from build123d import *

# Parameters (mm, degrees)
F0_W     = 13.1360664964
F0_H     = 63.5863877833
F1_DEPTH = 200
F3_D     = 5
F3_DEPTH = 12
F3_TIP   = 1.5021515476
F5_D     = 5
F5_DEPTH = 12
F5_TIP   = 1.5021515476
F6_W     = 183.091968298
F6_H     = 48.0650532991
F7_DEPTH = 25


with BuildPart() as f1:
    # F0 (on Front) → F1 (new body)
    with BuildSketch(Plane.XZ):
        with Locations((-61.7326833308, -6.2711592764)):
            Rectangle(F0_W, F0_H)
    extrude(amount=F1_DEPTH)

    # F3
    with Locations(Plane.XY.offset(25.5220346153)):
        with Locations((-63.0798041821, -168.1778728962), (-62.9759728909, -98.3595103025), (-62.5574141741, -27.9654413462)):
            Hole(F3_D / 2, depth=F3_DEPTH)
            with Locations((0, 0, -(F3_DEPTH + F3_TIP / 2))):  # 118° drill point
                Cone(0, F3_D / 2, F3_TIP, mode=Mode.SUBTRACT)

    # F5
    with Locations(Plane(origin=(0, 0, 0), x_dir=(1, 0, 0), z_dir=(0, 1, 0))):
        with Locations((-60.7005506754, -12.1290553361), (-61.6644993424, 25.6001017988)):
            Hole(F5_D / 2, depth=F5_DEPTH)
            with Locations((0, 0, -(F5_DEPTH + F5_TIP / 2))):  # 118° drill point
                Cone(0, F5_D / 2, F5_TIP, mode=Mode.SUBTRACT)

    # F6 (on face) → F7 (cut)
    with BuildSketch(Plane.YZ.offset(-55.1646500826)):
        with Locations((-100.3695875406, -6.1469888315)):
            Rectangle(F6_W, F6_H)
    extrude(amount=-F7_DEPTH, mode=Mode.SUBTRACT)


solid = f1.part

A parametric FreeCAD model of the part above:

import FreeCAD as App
import Part
import Sketcher
Q = App.Units.Quantity


def add_polygon(sketch, points):
    """Adds a closed chain of lines whose ends are joined by coincident constraints."""
    first, n = sketch.GeometryCount, len(points)
    for a, b in zip(points, points[1:] + points[:1]):
        sketch.addGeometry(Part.LineSegment(App.Vector(*a, 0), App.Vector(*b, 0)), False)
    for i in range(n):
        sketch.addConstraint(Sketcher.Constraint("Coincident", first + i, 2, first + (i + 1) % n, 1))

doc = App.newDocument("Part")
params = doc.addObject("Spreadsheet::Sheet", "Params")
for row, (alias, value) in enumerate([
    ("pad1_length", "200 mm"),
    ("sketch2_diameter", "5 mm"),
    ("hole_diameter", "5 mm"),
    ("hole_depth", "12 mm"),
    ("sketch3_diameter", "5 mm"),
    ("hole2_diameter", "5 mm"),
    ("hole2_depth", "12 mm"),
    ("pocket1_length", "25 mm"),
], start=1):
    params.set(f"A{row}", alias)
    params.set(f"B{row}", "=" + value)
    params.setAlias(f"B{row}", alias)

body = doc.addObject("PartDesign::Body", "Body")

# Sketch on XZ plane
sketch1 = doc.addObject("Sketcher::SketchObject", "Sketch")
body.addObject(sketch1)
sketch1.AttachmentSupport = (doc.XZ_Plane, [""])
sketch1.MapMode = "FlatFace"
add_polygon(sketch1, [(-68, 26), (-68, -38), (-55, -38), (-55, 26)])  # lines 0-3
sketch1.addConstraint(Sketcher.Constraint("Vertical", 0))
sketch1.addConstraint(Sketcher.Constraint("Horizontal", 1))
sketch1.addConstraint(Sketcher.Constraint("Vertical", 2))
sketch1.addConstraint(Sketcher.Constraint("Horizontal", 3))
sketch1.addConstraint(Sketcher.Constraint("DistanceX", 1, 1, 1, 2, Q("13.136066 mm")))
sketch1.addConstraint(Sketcher.Constraint("DistanceY", 0, 2, 0, 1, Q("63.586388 mm")))
sketch1.addConstraint(Sketcher.Constraint("DistanceX", 1, 2, -1, 1, Q("55.16465 mm")))
sketch1.addConstraint(Sketcher.Constraint("DistanceY", 0, 2, -1, 1, Q("38.064353 mm")))
pad1 = doc.addObject("PartDesign::Pad", "Pad")
body.addObject(pad1)
pad1.Profile = sketch1
pad1.setExpression("Length", "Params.pad1_length")

# Sketch on XY plane
sketch2 = doc.addObject("Sketcher::SketchObject", "Sketch001")
body.addObject(sketch2)
sketch2.AttachmentSupport = (doc.XY_Plane, [""])
sketch2.MapMode = "FlatFace"
sketch2.AttachmentOffset = App.Placement(App.Vector(0, 0, 25.522035), App.Rotation())
sketch2.addGeometry(Part.Circle(App.Vector(-63.1, -168.2, 0), App.Vector(0, 0, 1), 2.5), False)
sketch2.addGeometry(Part.Circle(App.Vector(-63, -98.4, 0), App.Vector(0, 0, 1), 2.5), False)
sketch2.addGeometry(Part.Circle(App.Vector(-62.6, -28, 0), App.Vector(0, 0, 1), 2.5), False)
sketch2.addConstraint(Sketcher.Constraint("Equal", 0, 1))
sketch2.addConstraint(Sketcher.Constraint("Equal", 1, 2))
sketch2.addConstraint(Sketcher.Constraint("Diameter", 0, Q("5 mm")))
sketch2.addConstraint(Sketcher.Constraint("DistanceY", 1, 3, -1, 1, Q("98.35951 mm")))
sketch2.addConstraint(Sketcher.Constraint("DistanceY", 2, 3, -1, 1, Q("27.965441 mm")))
sketch2.addConstraint(Sketcher.Constraint("DistanceX", 0, 3, 1, 3, Q("0.103831 mm")))
sketch2.addConstraint(Sketcher.Constraint("DistanceX", 1, 3, 2, 3, Q("0.418559 mm")))
sketch2.addConstraint(Sketcher.Constraint("DistanceY", 0, 3, 2, 3, Q("140.212432 mm")))
sketch2.addConstraint(Sketcher.Constraint("DistanceX", 0, 3, -1, 1, Q("63.079804 mm")))
sketch2.setExpression("Constraints[2]", "Params.sketch2_diameter")
doc.recompute()
hole = doc.addObject("PartDesign::Hole", "Hole")
body.addObject(hole)
hole.Profile = sketch2
hole.ThreadType = "None"
hole.setExpression("Diameter", "Params.hole_diameter")
hole.DepthType = "Dimension"
hole.setExpression("Depth", "Params.hole_depth")
hole.DrillPoint = "Angled"
hole.DrillPointAngle = 118

# Sketch on XZ plane
sketch3 = doc.addObject("Sketcher::SketchObject", "Sketch002")
body.addObject(sketch3)
sketch3.AttachmentSupport = (doc.XZ_Plane, [""])
sketch3.MapMode = "FlatFace"
sketch3.addGeometry(Part.Circle(App.Vector(-60.7, 12.1, 0), App.Vector(0, 0, 1), 2.5), False)
sketch3.addGeometry(Part.Circle(App.Vector(-61.7, -25.6, 0), App.Vector(0, 0, 1), 2.5), False)
sketch3.addConstraint(Sketcher.Constraint("Equal", 0, 1))
sketch3.addConstraint(Sketcher.Constraint("Diameter", 0, Q("5 mm")))
sketch3.addConstraint(Sketcher.Constraint("DistanceX", 1, 3, -1, 1, Q("61.664499 mm")))
sketch3.addConstraint(Sketcher.Constraint("DistanceY", 1, 3, -1, 1, Q("25.600102 mm")))
sketch3.addConstraint(Sketcher.Constraint("DistanceX", 0, 3, -1, 1, Q("60.700551 mm")))
sketch3.addConstraint(Sketcher.Constraint("DistanceY", -1, 1, 0, 3, Q("12.129055 mm")))
sketch3.setExpression("Constraints[1]", "Params.sketch3_diameter")
doc.recompute()
hole2 = doc.addObject("PartDesign::Hole", "Hole001")
body.addObject(hole2)
hole2.Profile = sketch3
hole2.ThreadType = "None"
hole2.setExpression("Diameter", "Params.hole2_diameter")
hole2.DepthType = "Dimension"
hole2.setExpression("Depth", "Params.hole2_depth")
hole2.DrillPoint = "Angled"
hole2.DrillPointAngle = 118
hole2.Reversed = True

# Sketch on YZ plane
sketch4 = doc.addObject("Sketcher::SketchObject", "Sketch003")
body.addObject(sketch4)
sketch4.AttachmentSupport = (doc.YZ_Plane, [""])
sketch4.MapMode = "FlatFace"
sketch4.AttachmentOffset = App.Placement(App.Vector(0, 0, -55.16465), App.Rotation())
add_polygon(sketch4, [(-192, 18), (-192, -30), (-9, -30), (-9, 18)])  # lines 0-3
sketch4.addConstraint(Sketcher.Constraint("Vertical", 0))
sketch4.addConstraint(Sketcher.Constraint("Horizontal", 1))
sketch4.addConstraint(Sketcher.Constraint("Vertical", 2))
sketch4.addConstraint(Sketcher.Constraint("Horizontal", 3))
sketch4.addConstraint(Sketcher.Constraint("DistanceX", 1, 1, 1, 2, Q("183.091968 mm")))
sketch4.addConstraint(Sketcher.Constraint("DistanceY", 0, 2, 0, 1, Q("48.065053 mm")))
sketch4.addConstraint(Sketcher.Constraint("DistanceX", 0, 2, -1, 1, Q("191.915572 mm")))
sketch4.addConstraint(Sketcher.Constraint("DistanceY", 0, 2, -1, 1, Q("30.179515 mm")))
pocket1 = doc.addObject("PartDesign::Pocket", "Pocket")
body.addObject(pocket1)
pocket1.Profile = sketch4
pocket1.setExpression("Length", "Params.pocket1_length")

doc.recompute()
